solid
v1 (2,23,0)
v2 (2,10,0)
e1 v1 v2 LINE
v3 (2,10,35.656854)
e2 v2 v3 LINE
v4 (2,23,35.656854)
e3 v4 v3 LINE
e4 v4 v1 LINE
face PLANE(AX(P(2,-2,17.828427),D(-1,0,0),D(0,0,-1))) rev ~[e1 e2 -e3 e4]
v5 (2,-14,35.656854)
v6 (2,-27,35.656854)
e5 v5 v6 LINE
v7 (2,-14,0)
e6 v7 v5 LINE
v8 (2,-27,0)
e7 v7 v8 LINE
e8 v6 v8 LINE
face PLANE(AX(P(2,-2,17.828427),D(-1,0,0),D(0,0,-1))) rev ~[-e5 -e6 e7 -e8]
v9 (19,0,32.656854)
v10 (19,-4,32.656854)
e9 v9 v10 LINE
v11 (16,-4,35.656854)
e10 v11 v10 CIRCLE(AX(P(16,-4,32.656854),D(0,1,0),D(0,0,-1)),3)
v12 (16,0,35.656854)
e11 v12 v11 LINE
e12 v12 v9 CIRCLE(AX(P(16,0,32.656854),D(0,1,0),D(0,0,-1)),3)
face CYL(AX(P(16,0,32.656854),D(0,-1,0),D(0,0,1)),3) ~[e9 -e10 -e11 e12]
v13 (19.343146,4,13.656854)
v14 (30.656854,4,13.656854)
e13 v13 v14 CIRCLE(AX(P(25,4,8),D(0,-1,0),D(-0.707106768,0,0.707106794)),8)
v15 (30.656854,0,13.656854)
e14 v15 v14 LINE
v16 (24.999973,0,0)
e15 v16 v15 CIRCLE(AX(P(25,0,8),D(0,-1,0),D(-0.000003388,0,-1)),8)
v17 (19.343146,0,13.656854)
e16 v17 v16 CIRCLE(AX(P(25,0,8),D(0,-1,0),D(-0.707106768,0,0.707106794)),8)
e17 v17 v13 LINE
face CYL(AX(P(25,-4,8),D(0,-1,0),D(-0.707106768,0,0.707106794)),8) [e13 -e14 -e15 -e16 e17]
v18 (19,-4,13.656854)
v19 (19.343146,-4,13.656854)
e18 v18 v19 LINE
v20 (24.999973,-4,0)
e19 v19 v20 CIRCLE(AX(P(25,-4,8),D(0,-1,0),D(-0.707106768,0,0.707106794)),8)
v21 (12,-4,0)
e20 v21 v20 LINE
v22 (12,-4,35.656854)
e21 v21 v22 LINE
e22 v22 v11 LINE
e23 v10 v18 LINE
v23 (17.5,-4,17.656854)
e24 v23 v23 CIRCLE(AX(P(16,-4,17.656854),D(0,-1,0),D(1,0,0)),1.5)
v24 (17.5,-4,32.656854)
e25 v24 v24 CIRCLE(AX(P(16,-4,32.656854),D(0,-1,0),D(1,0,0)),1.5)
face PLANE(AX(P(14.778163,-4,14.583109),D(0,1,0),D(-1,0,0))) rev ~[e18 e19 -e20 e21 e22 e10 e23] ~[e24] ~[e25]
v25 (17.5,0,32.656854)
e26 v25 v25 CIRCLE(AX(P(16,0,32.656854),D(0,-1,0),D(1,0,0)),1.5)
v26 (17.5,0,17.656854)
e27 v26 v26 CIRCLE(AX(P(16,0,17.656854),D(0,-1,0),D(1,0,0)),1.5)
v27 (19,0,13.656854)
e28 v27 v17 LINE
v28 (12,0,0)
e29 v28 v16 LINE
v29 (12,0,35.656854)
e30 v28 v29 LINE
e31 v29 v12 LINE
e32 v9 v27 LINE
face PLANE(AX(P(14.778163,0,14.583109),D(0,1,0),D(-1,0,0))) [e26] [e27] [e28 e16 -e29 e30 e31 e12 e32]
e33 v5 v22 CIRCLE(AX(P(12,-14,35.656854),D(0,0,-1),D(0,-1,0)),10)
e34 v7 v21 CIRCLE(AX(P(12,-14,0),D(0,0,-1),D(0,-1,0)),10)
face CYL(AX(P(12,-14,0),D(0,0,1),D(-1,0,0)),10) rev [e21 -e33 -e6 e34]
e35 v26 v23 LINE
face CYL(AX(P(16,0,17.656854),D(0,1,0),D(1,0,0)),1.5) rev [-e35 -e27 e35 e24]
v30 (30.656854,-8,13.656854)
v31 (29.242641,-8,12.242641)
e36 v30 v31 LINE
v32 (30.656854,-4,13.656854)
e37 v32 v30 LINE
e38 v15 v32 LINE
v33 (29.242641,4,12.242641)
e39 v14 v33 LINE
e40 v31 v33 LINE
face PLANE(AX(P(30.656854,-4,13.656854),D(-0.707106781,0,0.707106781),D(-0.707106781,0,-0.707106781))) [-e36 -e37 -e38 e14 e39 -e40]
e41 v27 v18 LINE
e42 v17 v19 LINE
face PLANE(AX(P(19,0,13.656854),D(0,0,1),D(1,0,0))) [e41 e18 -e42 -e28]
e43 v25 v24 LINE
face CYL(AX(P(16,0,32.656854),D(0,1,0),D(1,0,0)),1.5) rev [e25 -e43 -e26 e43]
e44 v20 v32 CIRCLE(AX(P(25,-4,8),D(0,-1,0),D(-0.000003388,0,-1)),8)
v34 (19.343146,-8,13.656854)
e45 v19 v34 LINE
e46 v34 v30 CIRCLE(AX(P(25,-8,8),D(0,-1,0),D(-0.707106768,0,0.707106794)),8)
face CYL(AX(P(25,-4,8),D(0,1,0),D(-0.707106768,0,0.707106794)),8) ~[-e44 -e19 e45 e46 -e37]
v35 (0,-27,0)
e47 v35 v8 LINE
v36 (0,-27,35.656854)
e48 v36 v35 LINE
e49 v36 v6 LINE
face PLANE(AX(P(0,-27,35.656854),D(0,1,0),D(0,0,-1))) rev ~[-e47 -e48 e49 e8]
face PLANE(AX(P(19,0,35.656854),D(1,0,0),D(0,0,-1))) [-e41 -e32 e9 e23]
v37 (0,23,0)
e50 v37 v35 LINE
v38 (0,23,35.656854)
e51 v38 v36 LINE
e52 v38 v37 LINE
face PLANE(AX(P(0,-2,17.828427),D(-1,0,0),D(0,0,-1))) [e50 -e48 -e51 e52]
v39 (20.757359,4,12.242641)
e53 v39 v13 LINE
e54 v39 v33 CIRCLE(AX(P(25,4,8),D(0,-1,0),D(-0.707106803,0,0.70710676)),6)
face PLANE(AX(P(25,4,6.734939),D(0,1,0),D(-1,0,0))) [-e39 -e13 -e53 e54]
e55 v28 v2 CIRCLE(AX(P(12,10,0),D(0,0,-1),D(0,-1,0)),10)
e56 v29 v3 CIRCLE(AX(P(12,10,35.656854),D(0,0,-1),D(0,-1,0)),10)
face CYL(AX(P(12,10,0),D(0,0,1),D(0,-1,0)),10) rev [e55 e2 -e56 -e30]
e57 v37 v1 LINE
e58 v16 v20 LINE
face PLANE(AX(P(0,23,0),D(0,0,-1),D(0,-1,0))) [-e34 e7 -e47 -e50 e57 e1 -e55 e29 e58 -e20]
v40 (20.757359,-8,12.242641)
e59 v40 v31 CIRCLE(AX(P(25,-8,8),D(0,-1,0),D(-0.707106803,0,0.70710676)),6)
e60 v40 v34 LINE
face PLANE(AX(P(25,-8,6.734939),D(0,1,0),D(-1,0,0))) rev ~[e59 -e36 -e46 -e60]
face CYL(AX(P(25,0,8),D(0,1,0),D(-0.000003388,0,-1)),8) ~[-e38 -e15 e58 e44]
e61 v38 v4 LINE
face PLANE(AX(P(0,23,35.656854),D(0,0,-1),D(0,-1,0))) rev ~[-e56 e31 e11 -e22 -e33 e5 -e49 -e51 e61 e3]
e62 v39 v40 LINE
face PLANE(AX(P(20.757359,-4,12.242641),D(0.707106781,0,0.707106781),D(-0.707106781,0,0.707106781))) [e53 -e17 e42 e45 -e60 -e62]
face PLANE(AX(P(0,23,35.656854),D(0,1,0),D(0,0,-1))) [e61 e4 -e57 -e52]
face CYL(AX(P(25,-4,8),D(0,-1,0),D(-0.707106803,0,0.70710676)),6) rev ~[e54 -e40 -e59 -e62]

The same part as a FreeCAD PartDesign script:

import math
import FreeCAD as App
import Part
import Sketcher
from FreeCAD import Vector
Q = App.Units.Quantity


def edges_at(feature, points):
    """Names of the edges that pass closest to the given points."""
    edges = feature.Shape.Edges
    near = lambda p: min(range(len(edges)), key=lambda i: edges[i].distToShape(Part.Vertex(*p))[0])
    return sorted({f"Edge{near(p) + 1}" for p in points})


def add_polygon(sketch, points):
    """Adds a closed chain of lines whose ends are joined by coincident constraints."""
    first, n = sketch.GeometryCount, len(points)
    for a, b in zip(points, points[1:] + points[:1]):
        sketch.addGeometry(Part.LineSegment(App.Vector(*a, 0), App.Vector(*b, 0)), False)
    for i in range(n):
        sketch.addConstraint(Sketcher.Constraint("Coincident", first + i, 2, first + (i + 1) % n, 1))

doc = App.newDocument("Part")
body = doc.addObject("PartDesign::Body", "Body")

sketch1 = doc.addObject("Sketcher::SketchObject", "Sketch")
body.addObject(sketch1)
sketch1.AttachmentSupport = (doc.XZ_Plane, [""])
sketch1.MapMode = "FlatFace"
sketch1.addGeometry([
    Part.ArcOfCircle(Part.Circle(Vector(25, 8, 0), Vector(0, 0, 1), 6), math.radians(135), math.radians(405)),
    Part.LineSegment(Vector(20.76, 12.24, 0), Vector(19.34, 13.66, 0)),
    Part.LineSegment(Vector(19.34, 13.66, 0), Vector(19, 13.66, 0)),
    Part.LineSegment(Vector(19, 13.66, 0), Vector(19, 35.66, 0)),
    Part.LineSegment(Vector(19, 35.66, 0), Vector(0, 35.66, 0)),
    Part.LineSegment(Vector(0, 35.66, 0), Vector(0, 0, 0)),
    Part.LineSegment(Vector(0, 0, 0), Vector(25, 0, 0)),
    Part.ArcOfCircle(Part.Circle(Vector(25, 8, 0), Vector(0, 0, 1), 8), math.radians(-90), math.radians(45)),
    Part.LineSegment(Vector(30.66, 13.66, 0), Vector(29.24, 12.24, 0)),
    Part.Circle(Vector(16, 17.66, 0), Vector(0, 0, 1), 1.5),
    Part.Circle(Vector(16, 32.66, 0), Vector(0, 0, 1), 1.5),
], False)
sketch1.addConstraint([
    Sketcher.Constraint("Coincident", 0, 1, 1, 1),
    Sketcher.Constraint("Coincident", 1, 2, 2, 1),
    Sketcher.Constraint("Coincident", 2, 2, 3, 1),
    Sketcher.Constraint("Coincident", 3, 2, 4, 1),
    Sketcher.Constraint("Coincident", 4, 2, 5, 1),
    Sketcher.Constraint("Coincident", 5, 2, 6, 1),
    Sketcher.Constraint("Coincident", 6, 2, 7, 1),
    Sketcher.Constraint("Coincident", 7, 2, 8, 1),
    Sketcher.Constraint("Coincident", 8, 2, 0, 2),
    Sketcher.Constraint("Horizontal", 2),
    Sketcher.Constraint("Vertical", 3),
    Sketcher.Constraint("Horizontal", 4),
    Sketcher.Constraint("Vertical", 5),
    Sketcher.Constraint("Horizontal", 6),
    Sketcher.Constraint("Coincident", 5, 2, -1, 1),
    Sketcher.Constraint("Coincident", 7, 3, 0, 3),
    Sketcher.Constraint("Equal", 9, 10),
    Sketcher.Constraint("Perpendicular", 1, 8),
    Sketcher.Constraint("Horizontal", 2, 2, 7, 2),
    Sketcher.Constraint("Horizontal", 0, 1, 8, 2),
    Sketcher.Constraint("Vertical", 9, 3, 10, 3),
    Sketcher.Constraint("Equal", 1, 8),
    Sketcher.Constraint("Diameter", 9, Q("3 mm")),
    Sketcher.Constraint("Radius", 0, Q("6 mm")),
    Sketcher.Constraint("Radius", 7, Q("8 mm")),
    Sketcher.Constraint("DistanceX", 4, 2, 4, 1, Q("19 mm")),
    Sketcher.Constraint("DistanceY", 3, 1, 3, 2, Q("22 mm")),
    Sketcher.Constraint("DistanceX", -1, 1, 0, 3, Q("25 mm")),
    Sketcher.Constraint("DistanceX", -1, 1, 9, 3, Q("16 mm")),
    Sketcher.Constraint("DistanceY", 9, 3, 10, 3, Q("15 mm")),
    Sketcher.Constraint("DistanceY", 1, 2, 9, 3, Q("4 mm")),
    Sketcher.Constraint("DistanceX", 2, 2, 2, 1, Q("0.343146 mm")),
    Sketcher.Constraint("DistanceX", 6, 1, 6, 2, Q("24.999973 mm")),
])
pad1 = doc.addObject("PartDesign::Pad", "Pad")
body.addObject(pad1)
pad1.Profile = sketch1
pad1.Length = 4

sketch2 = doc.addObject("Sketcher::SketchObject", "Sketch001")
body.addObject(sketch2)
sketch2.AttachmentSupport = (doc.XZ_Plane, [""])
sketch2.MapMode = "FlatFace"
sketch2.AttachmentOffset = App.Placement(Vector(0, 0, 4), App.Rotation())
sketch2.addGeometry([
    Part.ArcOfCircle(Part.Circle(Vector(25, 8, 0), Vector(0, 0, 1), 6), math.radians(135), math.radians(405)),
    Part.LineSegment(Vector(20.8, 12.2, 0), Vector(19.3, 13.7, 0)),
    Part.ArcOfCircle(Part.Circle(Vector(25, 8, 0), Vector(0, 0, 1), 8), math.radians(135), math.radians(405)),
    Part.LineSegment(Vector(30.7, 13.7, 0), Vector(29.2, 12.2, 0)),
], False)
sketch2.addConstraint([
    Sketcher.Constraint("Coincident", 0, 1, 1, 1),
    Sketcher.Constraint("Coincident", 1, 2, 2, 1),
    Sketcher.Constraint("Coincident", 2, 2, 3, 1),
    Sketcher.Constraint("Coincident", 3, 2, 0, 2),
    Sketcher.Constraint("Coincident", 2, 3, 0, 3),
    Sketcher.Constraint("Perpendicular", 1, 3),
    Sketcher.Constraint("Horizontal", 1, 2, 2, 2),
    Sketcher.Constraint("Horizontal", 0, 1, 3, 2),
    Sketcher.Constraint("Radius", 0, Q("6 mm")),
    Sketcher.Constraint("Radius", 2, Q("8 mm")),
    Sketcher.Constraint("DistanceX", -1, 1, 0, 3, Q("25 mm")),
    Sketcher.Constraint("DistanceY", -1, 1, 0, 3, Q("8 mm")),
    Sketcher.Constraint("DistanceX", -1, 1, 0, 1, Q("20.757359 mm")),
])
pad2 = doc.addObject("PartDesign::Pad", "Pad001")
body.addObject(pad2)
pad2.Profile = sketch2
pad2.Type = "TwoLengths"
pad2.Length = 4
pad2.Length2 = 8

sketch3 = doc.addObject("Sketcher::SketchObject", "Sketch002")
body.addObject(sketch3)
sketch3.AttachmentSupport = (doc.YZ_Plane, [""])
sketch3.MapMode = "FlatFace"
add_polygon(sketch3, [(-27, 36), (23, 36), (23, 0), (-27, 0)])
sketch3.addConstraint([
    Sketcher.Constraint("Horizontal", 0),
    Sketcher.Constraint("Vertical", 1),
    Sketcher.Constraint("Horizontal", 2),
    Sketcher.Constraint("Vertical", 3),
    Sketcher.Constraint("PointOnObject", 1, 2, -1),
    Sketcher.Constraint("DistanceX", 0, 1, 0, 2, Q("50 mm")),
    Sketcher.Constraint("DistanceX", -1, 1, 0, 2, Q("23 mm")),
    Sketcher.Constraint("DistanceY", 1, 2, 1, 1, Q("35.656854 mm")),
])
pad3 = doc.addObject("PartDesign::Pad", "Pad002")
body.addObject(pad3)
pad3.Profile = sketch3
pad3.Length = 2
doc.recompute()

fillet = doc.addObject("PartDesign::Fillet", "Fillet")
body.addObject(fillet)
fillet.Base = (pad3, edges_at(pad3, [(2, -4, 17.828), (2, 0, 17.828)]))
fillet.Radius = 10
doc.recompute()

fillet2 = doc.addObject("PartDesign::Fillet", "Fillet001")
body.addObject(fillet2)
fillet2.Base = (fillet, edges_at(fillet, [(19, -2, 35.657)]))
fillet2.Radius = 3

doc.recompute()
